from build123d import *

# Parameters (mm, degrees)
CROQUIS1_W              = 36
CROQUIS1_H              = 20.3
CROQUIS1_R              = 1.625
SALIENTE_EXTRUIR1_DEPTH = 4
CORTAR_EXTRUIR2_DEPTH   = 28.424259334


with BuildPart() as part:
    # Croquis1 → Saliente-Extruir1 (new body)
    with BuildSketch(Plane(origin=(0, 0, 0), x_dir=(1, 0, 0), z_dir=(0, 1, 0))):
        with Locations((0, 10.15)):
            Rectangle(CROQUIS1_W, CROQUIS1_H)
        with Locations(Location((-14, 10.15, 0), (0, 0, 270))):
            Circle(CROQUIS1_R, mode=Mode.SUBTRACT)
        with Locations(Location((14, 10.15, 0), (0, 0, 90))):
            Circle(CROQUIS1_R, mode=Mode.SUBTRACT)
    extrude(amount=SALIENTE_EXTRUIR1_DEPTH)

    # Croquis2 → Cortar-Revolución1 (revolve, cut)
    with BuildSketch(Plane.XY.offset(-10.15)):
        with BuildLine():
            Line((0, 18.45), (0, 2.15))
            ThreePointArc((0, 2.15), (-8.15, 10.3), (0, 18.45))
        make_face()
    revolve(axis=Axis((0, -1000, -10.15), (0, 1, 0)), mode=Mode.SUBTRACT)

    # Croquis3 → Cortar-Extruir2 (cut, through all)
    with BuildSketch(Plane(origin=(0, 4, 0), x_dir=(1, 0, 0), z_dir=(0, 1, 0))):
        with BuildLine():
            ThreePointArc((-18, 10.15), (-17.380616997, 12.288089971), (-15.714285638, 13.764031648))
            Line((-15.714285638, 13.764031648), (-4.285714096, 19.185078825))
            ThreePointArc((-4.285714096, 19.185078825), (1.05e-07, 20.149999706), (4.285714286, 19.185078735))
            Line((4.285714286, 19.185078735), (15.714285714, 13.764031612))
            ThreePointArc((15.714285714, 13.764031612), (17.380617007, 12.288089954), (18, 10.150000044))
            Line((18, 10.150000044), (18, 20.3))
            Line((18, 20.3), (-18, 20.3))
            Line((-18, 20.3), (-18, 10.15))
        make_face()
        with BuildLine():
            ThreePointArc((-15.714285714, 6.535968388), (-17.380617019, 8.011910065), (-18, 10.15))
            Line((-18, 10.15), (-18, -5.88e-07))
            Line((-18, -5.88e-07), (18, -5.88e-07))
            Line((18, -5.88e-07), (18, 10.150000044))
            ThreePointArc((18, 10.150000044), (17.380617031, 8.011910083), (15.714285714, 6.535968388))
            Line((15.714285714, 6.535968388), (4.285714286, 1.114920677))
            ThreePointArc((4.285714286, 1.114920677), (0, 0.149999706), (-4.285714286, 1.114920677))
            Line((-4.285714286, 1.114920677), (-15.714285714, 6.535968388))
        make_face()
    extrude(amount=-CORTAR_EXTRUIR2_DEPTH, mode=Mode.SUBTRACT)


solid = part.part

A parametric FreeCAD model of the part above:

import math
import FreeCAD as App
import Part
import Sketcher


def add_polygon(sketch, points):
    """Adds a closed chain of lines whose ends are joined by coincident constraints."""
    first, n = sketch.GeometryCount, len(points)
    for a, b in zip(points, points[1:] + points[:1]):
        sketch.addGeometry(Part.LineSegment(App.Vector(*a, 0), App.Vector(*b, 0)), False)
    for i in range(n):
        sketch.addConstraint(Sketcher.Constraint("Coincident", first + i, 2, first + (i + 1) % n, 1))

doc = App.newDocument("Part")
params = doc.addObject("Spreadsheet::Sheet", "Params")
for row, (alias, value) in enumerate([
    ("sketch1_diameter", "3.25 mm"),
    ("sketch1_width", "36 mm"),
    ("sketch1_height", "20.3 mm"),
    ("pad1_length", "4 mm"),
    ("sketch2_radius", "8.15 mm"),
    ("groove_angle", "360 deg"),
    ("sketch3_radius", "4 mm"),
    ("sketch3_radius2", "10 mm"),
    ("sketch3_width", "36 mm"),
    ("sketch3_height", "10.15 mm"),
], start=1):
    params.set(f"A{row}", alias)
    params.set(f"B{row}", "=" + value)
    params.setAlias(f"B{row}", alias)

body = doc.addObject("PartDesign::Body", "Body")

# Sketch on XZ plane
sketch1 = doc.addObject("Sketcher::SketchObject", "Sketch")
body.addObject(sketch1)
sketch1.AttachmentSupport = (doc.XZ_Plane, [""])
sketch1.MapMode = "FlatFace"
add_polygon(sketch1, [(-18, -20.3), (-18, 0), (18, 0), (18, -20.3)])  # lines 0-3
sketch1.addGeometry(Part.Circle(App.Vector(-14, -10.15, 0), App.Vector(0, 0, 1), 1.625), False)  # 4
sketch1.addGeometry(Part.Circle(App.Vector(14, -10.15, 0), App.Vector(0, 0, 1), 1.625), False)  # 5
sketch1.addConstraint([
    Sketcher.Constraint("Vertical", 0),
    Sketcher.Constraint("Horizontal", 1),
    Sketcher.Constraint("Vertical", 2),
    Sketcher.Constraint("Horizontal", 3),
    Sketcher.Constraint("Equal", 4, 5),
    Sketcher.Constraint("Symmetric", 0, 2, 1, 2, -1, 1),
    Sketcher.Constraint("Symmetric", 4, 3, 5, 3, -2),
    Sketcher.Constraint("Diameter", 4, 3.25),
    Sketcher.Constraint("DistanceX", 1, 1, 1, 2, 36.0),
    Sketcher.Constraint("DistanceY", 0, 1, 0, 2, 20.3),
    Sketcher.Constraint("DistanceX", 4, 3, -1, 1, 14.0),
    Sketcher.Constraint("DistanceY", 4, 3, -1, 1, 10.15),
])
sketch1.setExpression("Constraints[11]", "Params.sketch1_diameter")
sketch1.setExpression("Constraints[12]", "Params.sketch1_width")
sketch1.setExpression("Constraints[13]", "Params.sketch1_height")
pad1 = doc.addObject("PartDesign::Pad", "Pad")
body.addObject(pad1)
pad1.Profile = sketch1
pad1.setExpression("Length", "Params.pad1_length")
pad1.Reversed = True

# Sketch on XY plane
sketch2 = doc.addObject("Sketcher::SketchObject", "Sketch001")
body.addObject(sketch2)
sketch2.AttachmentSupport = (doc.XY_Plane, [""])
sketch2.MapMode = "FlatFace"
sketch2.AttachmentOffset = App.Placement(App.Vector(0, 0, -10.15), App.Rotation())
sketch2.addGeometry([
    Part.LineSegment(App.Vector(0, 2.15, 0), App.Vector(0, 18.45, 0)),
    Part.ArcOfCircle(Part.Circle(App.Vector(0, 10.3, 0), App.Vector(0, 0, 1), 8.15), math.radians(90), math.radians(270)),
], False)
sketch2.addConstraint([
    Sketcher.Constraint("Coincident", 0, 1, 1, 2),
    Sketcher.Constraint("Coincident", 1, 1, 0, 2),
    Sketcher.Constraint("Vertical", 0),
    Sketcher.Constraint("PointOnObject", 1, 3, -2),
    Sketcher.Constraint("PointOnObject", 0, 1, -2),
    Sketcher.Constraint("Radius", 1, 8.15),
    Sketcher.Constraint("DistanceY", -1, 1, 1, 3, 10.3),
])
sketch2.setExpression("Constraints[5]", "Params.sketch2_radius")
groove = doc.addObject("PartDesign::Groove", "Groove")
body.addObject(groove)
groove.Profile = sketch2
groove.ReferenceAxis = (sketch2, ["V_Axis"])
groove.setExpression("Angle", "Params.groove_angle")

# Sketch on XZ plane
sketch3 = doc.addObject("Sketcher::SketchObject", "Sketch002")
body.addObject(sketch3)
sketch3.AttachmentSupport = (doc.XZ_Plane, [""])
sketch3.MapMode = "FlatFace"
sketch3.AttachmentOffset = App.Placement(App.Vector(0, 0, -4), App.Rotation())
sketch3.addGeometry([
    Part.ArcOfCircle(Part.Circle(App.Vector(-14, -10.15, 0), App.Vector(0, 0, 1), 4), math.radians(180), math.radians(244.623068)),  # 0
    Part.LineSegment(App.Vector(-15.714286, -13.764032, 0), App.Vector(-4.285714, -19.185079, 0)),  # 1
    Part.ArcOfCircle(Part.Circle(App.Vector(0, -10.15, 0), App.Vector(0, 0, 1), 10), math.radians(-115.376932), math.radians(-64.623066)),  # 2
    Part.LineSegment(App.Vector(4.285714, -19.185079, 0), App.Vector(15.714286, -13.764032, 0)),  # 3
    Part.ArcOfCircle(Part.Circle(App.Vector(14, -10.15, 0), App.Vector(0, 0, 1), 4), math.radians(-64.623066), math.radians(-0.000001)),  # 4
    Part.LineSegment(App.Vector(18, -10.15, 0), App.Vector(18, -20.3, 0)),  # 5
    Part.LineSegment(App.Vector(18, -20.3, 0), App.Vector(-18, -20.3, 0)),  # 6
    Part.LineSegment(App.Vector(-18, -20.3, 0), App.Vector(-18, -10.15, 0)),  # 7
    Part.ArcOfCircle(Part.Circle(App.Vector(-14, -10.15, 0), App.Vector(0, 0, 1), 4), math.radians(115.376934), math.radians(180)),  # 8
    Part.LineSegment(App.Vector(-18, -10.15, 0), App.Vector(-18, 0.000001, 0)),  # 9
    Part.LineSegment(App.Vector(-18, 0.000001, 0), App.Vector(18, 0.000001, 0)),  # 10
    Part.LineSegment(App.Vector(18, 0.000001, 0), App.Vector(18, -10.15, 0)),  # 11
    Part.ArcOfCircle(Part.Circle(App.Vector(14, -10.15, 0), App.Vector(0, 0, 1), 4), math.radians(-0.000001), math.radians(64.623067)),  # 12
    Part.LineSegment(App.Vector(15.714286, -6.535968, 0), App.Vector(4.285714, -1.114921, 0)),  # 13
    Part.ArcOfCircle(Part.Circle(App.Vector(0, -10.15, 0), App.Vector(0, 0, 1), 10), math.radians(64.623066), math.radians(115.376934)),  # 14
    Part.LineSegment(App.Vector(-4.285714, -1.114921, 0), App.Vector(-15.714286, -6.535968, 0)),  # 15
], False)
sketch3.addConstraint([
    Sketcher.Constraint("Tangent", 0, 2, 1, 1),
    Sketcher.Constraint("Tangent", 1, 2, 2, 1),
    Sketcher.Constraint("Tangent", 2, 2, 3, 1),
    Sketcher.Constraint("Tangent", 3, 2, 4, 1),
    Sketcher.Constraint("Tangent", 4, 2, 5, 1),
    Sketcher.Constraint("Coincident", 5, 2, 6, 1),
    Sketcher.Constraint("Coincident", 6, 2, 7, 1),
    Sketcher.Constraint("Tangent", 7, 2, 0, 1),
    Sketcher.Constraint("Tangent", 8, 2, 9, 1),
    Sketcher.Constraint("Coincident", 9, 2, 10, 1),
    Sketcher.Constraint("Coincident", 10, 2, 11, 1),
    Sketcher.Constraint("Tangent", 11, 2, 12, 1),
    Sketcher.Constraint("Tangent", 12, 2, 13, 1),
    Sketcher.Constraint("Tangent", 13, 2, 14, 1),
    Sketcher.Constraint("Tangent", 14, 2, 15, 1),
    Sketcher.Constraint("Tangent", 15, 2, 8, 1),
    Sketcher.Constraint("Vertical", 5),
    Sketcher.Constraint("Horizontal", 6),
    Sketcher.Constraint("Vertical", 7),
    Sketcher.Constraint("Vertical", 9),
    Sketcher.Constraint("Horizontal", 10),
    Sketcher.Constraint("Vertical", 11),
    Sketcher.Constraint("Coincident", 8, 3, 0, 3),
    Sketcher.Constraint("Coincident", 12, 3, 4, 3),
    Sketcher.Constraint("Coincident", 14, 3, 2, 3),
    Sketcher.Constraint("Equal", 0, 4),
    Sketcher.Constraint("Equal", 4, 8),
    Sketcher.Constraint("Equal", 8, 12),
    Sketcher.Constraint("Equal", 2, 14),
    Sketcher.Constraint("Symmetric", 9, 2, 10, 2, -1, 1),
    Sketcher.Constraint("Symmetric", 1, 2, 2, 2, -2),
    Sketcher.Constraint("Parallel", 1, 13),
    Sketcher.Constraint("Equal", 7, 9),
    Sketcher.Constraint("Radius", 0, 4.0),
    Sketcher.Constraint("Radius", 2, 10.0),
    Sketcher.Constraint("DistanceX", 6, 2, 6, 1, 36.0),
    Sketcher.Constraint("DistanceY", 5, 2, 5, 1, 10.15),
])
sketch3.setExpression("Constraints[33]", "Params.sketch3_radius")
sketch3.setExpression("Constraints[34]", "Params.sketch3_radius2")
sketch3.setExpression("Constraints[35]", "Params.sketch3_width")
sketch3.setExpression("Constraints[36]", "Params.sketch3_height")
pocket1 = doc.addObject("PartDesign::Pocket", "Pocket")
body.addObject(pocket1)
pocket1.Profile = sketch3
pocket1.Type = "ThroughAll"
pocket1.Reversed = True

doc.recompute()
